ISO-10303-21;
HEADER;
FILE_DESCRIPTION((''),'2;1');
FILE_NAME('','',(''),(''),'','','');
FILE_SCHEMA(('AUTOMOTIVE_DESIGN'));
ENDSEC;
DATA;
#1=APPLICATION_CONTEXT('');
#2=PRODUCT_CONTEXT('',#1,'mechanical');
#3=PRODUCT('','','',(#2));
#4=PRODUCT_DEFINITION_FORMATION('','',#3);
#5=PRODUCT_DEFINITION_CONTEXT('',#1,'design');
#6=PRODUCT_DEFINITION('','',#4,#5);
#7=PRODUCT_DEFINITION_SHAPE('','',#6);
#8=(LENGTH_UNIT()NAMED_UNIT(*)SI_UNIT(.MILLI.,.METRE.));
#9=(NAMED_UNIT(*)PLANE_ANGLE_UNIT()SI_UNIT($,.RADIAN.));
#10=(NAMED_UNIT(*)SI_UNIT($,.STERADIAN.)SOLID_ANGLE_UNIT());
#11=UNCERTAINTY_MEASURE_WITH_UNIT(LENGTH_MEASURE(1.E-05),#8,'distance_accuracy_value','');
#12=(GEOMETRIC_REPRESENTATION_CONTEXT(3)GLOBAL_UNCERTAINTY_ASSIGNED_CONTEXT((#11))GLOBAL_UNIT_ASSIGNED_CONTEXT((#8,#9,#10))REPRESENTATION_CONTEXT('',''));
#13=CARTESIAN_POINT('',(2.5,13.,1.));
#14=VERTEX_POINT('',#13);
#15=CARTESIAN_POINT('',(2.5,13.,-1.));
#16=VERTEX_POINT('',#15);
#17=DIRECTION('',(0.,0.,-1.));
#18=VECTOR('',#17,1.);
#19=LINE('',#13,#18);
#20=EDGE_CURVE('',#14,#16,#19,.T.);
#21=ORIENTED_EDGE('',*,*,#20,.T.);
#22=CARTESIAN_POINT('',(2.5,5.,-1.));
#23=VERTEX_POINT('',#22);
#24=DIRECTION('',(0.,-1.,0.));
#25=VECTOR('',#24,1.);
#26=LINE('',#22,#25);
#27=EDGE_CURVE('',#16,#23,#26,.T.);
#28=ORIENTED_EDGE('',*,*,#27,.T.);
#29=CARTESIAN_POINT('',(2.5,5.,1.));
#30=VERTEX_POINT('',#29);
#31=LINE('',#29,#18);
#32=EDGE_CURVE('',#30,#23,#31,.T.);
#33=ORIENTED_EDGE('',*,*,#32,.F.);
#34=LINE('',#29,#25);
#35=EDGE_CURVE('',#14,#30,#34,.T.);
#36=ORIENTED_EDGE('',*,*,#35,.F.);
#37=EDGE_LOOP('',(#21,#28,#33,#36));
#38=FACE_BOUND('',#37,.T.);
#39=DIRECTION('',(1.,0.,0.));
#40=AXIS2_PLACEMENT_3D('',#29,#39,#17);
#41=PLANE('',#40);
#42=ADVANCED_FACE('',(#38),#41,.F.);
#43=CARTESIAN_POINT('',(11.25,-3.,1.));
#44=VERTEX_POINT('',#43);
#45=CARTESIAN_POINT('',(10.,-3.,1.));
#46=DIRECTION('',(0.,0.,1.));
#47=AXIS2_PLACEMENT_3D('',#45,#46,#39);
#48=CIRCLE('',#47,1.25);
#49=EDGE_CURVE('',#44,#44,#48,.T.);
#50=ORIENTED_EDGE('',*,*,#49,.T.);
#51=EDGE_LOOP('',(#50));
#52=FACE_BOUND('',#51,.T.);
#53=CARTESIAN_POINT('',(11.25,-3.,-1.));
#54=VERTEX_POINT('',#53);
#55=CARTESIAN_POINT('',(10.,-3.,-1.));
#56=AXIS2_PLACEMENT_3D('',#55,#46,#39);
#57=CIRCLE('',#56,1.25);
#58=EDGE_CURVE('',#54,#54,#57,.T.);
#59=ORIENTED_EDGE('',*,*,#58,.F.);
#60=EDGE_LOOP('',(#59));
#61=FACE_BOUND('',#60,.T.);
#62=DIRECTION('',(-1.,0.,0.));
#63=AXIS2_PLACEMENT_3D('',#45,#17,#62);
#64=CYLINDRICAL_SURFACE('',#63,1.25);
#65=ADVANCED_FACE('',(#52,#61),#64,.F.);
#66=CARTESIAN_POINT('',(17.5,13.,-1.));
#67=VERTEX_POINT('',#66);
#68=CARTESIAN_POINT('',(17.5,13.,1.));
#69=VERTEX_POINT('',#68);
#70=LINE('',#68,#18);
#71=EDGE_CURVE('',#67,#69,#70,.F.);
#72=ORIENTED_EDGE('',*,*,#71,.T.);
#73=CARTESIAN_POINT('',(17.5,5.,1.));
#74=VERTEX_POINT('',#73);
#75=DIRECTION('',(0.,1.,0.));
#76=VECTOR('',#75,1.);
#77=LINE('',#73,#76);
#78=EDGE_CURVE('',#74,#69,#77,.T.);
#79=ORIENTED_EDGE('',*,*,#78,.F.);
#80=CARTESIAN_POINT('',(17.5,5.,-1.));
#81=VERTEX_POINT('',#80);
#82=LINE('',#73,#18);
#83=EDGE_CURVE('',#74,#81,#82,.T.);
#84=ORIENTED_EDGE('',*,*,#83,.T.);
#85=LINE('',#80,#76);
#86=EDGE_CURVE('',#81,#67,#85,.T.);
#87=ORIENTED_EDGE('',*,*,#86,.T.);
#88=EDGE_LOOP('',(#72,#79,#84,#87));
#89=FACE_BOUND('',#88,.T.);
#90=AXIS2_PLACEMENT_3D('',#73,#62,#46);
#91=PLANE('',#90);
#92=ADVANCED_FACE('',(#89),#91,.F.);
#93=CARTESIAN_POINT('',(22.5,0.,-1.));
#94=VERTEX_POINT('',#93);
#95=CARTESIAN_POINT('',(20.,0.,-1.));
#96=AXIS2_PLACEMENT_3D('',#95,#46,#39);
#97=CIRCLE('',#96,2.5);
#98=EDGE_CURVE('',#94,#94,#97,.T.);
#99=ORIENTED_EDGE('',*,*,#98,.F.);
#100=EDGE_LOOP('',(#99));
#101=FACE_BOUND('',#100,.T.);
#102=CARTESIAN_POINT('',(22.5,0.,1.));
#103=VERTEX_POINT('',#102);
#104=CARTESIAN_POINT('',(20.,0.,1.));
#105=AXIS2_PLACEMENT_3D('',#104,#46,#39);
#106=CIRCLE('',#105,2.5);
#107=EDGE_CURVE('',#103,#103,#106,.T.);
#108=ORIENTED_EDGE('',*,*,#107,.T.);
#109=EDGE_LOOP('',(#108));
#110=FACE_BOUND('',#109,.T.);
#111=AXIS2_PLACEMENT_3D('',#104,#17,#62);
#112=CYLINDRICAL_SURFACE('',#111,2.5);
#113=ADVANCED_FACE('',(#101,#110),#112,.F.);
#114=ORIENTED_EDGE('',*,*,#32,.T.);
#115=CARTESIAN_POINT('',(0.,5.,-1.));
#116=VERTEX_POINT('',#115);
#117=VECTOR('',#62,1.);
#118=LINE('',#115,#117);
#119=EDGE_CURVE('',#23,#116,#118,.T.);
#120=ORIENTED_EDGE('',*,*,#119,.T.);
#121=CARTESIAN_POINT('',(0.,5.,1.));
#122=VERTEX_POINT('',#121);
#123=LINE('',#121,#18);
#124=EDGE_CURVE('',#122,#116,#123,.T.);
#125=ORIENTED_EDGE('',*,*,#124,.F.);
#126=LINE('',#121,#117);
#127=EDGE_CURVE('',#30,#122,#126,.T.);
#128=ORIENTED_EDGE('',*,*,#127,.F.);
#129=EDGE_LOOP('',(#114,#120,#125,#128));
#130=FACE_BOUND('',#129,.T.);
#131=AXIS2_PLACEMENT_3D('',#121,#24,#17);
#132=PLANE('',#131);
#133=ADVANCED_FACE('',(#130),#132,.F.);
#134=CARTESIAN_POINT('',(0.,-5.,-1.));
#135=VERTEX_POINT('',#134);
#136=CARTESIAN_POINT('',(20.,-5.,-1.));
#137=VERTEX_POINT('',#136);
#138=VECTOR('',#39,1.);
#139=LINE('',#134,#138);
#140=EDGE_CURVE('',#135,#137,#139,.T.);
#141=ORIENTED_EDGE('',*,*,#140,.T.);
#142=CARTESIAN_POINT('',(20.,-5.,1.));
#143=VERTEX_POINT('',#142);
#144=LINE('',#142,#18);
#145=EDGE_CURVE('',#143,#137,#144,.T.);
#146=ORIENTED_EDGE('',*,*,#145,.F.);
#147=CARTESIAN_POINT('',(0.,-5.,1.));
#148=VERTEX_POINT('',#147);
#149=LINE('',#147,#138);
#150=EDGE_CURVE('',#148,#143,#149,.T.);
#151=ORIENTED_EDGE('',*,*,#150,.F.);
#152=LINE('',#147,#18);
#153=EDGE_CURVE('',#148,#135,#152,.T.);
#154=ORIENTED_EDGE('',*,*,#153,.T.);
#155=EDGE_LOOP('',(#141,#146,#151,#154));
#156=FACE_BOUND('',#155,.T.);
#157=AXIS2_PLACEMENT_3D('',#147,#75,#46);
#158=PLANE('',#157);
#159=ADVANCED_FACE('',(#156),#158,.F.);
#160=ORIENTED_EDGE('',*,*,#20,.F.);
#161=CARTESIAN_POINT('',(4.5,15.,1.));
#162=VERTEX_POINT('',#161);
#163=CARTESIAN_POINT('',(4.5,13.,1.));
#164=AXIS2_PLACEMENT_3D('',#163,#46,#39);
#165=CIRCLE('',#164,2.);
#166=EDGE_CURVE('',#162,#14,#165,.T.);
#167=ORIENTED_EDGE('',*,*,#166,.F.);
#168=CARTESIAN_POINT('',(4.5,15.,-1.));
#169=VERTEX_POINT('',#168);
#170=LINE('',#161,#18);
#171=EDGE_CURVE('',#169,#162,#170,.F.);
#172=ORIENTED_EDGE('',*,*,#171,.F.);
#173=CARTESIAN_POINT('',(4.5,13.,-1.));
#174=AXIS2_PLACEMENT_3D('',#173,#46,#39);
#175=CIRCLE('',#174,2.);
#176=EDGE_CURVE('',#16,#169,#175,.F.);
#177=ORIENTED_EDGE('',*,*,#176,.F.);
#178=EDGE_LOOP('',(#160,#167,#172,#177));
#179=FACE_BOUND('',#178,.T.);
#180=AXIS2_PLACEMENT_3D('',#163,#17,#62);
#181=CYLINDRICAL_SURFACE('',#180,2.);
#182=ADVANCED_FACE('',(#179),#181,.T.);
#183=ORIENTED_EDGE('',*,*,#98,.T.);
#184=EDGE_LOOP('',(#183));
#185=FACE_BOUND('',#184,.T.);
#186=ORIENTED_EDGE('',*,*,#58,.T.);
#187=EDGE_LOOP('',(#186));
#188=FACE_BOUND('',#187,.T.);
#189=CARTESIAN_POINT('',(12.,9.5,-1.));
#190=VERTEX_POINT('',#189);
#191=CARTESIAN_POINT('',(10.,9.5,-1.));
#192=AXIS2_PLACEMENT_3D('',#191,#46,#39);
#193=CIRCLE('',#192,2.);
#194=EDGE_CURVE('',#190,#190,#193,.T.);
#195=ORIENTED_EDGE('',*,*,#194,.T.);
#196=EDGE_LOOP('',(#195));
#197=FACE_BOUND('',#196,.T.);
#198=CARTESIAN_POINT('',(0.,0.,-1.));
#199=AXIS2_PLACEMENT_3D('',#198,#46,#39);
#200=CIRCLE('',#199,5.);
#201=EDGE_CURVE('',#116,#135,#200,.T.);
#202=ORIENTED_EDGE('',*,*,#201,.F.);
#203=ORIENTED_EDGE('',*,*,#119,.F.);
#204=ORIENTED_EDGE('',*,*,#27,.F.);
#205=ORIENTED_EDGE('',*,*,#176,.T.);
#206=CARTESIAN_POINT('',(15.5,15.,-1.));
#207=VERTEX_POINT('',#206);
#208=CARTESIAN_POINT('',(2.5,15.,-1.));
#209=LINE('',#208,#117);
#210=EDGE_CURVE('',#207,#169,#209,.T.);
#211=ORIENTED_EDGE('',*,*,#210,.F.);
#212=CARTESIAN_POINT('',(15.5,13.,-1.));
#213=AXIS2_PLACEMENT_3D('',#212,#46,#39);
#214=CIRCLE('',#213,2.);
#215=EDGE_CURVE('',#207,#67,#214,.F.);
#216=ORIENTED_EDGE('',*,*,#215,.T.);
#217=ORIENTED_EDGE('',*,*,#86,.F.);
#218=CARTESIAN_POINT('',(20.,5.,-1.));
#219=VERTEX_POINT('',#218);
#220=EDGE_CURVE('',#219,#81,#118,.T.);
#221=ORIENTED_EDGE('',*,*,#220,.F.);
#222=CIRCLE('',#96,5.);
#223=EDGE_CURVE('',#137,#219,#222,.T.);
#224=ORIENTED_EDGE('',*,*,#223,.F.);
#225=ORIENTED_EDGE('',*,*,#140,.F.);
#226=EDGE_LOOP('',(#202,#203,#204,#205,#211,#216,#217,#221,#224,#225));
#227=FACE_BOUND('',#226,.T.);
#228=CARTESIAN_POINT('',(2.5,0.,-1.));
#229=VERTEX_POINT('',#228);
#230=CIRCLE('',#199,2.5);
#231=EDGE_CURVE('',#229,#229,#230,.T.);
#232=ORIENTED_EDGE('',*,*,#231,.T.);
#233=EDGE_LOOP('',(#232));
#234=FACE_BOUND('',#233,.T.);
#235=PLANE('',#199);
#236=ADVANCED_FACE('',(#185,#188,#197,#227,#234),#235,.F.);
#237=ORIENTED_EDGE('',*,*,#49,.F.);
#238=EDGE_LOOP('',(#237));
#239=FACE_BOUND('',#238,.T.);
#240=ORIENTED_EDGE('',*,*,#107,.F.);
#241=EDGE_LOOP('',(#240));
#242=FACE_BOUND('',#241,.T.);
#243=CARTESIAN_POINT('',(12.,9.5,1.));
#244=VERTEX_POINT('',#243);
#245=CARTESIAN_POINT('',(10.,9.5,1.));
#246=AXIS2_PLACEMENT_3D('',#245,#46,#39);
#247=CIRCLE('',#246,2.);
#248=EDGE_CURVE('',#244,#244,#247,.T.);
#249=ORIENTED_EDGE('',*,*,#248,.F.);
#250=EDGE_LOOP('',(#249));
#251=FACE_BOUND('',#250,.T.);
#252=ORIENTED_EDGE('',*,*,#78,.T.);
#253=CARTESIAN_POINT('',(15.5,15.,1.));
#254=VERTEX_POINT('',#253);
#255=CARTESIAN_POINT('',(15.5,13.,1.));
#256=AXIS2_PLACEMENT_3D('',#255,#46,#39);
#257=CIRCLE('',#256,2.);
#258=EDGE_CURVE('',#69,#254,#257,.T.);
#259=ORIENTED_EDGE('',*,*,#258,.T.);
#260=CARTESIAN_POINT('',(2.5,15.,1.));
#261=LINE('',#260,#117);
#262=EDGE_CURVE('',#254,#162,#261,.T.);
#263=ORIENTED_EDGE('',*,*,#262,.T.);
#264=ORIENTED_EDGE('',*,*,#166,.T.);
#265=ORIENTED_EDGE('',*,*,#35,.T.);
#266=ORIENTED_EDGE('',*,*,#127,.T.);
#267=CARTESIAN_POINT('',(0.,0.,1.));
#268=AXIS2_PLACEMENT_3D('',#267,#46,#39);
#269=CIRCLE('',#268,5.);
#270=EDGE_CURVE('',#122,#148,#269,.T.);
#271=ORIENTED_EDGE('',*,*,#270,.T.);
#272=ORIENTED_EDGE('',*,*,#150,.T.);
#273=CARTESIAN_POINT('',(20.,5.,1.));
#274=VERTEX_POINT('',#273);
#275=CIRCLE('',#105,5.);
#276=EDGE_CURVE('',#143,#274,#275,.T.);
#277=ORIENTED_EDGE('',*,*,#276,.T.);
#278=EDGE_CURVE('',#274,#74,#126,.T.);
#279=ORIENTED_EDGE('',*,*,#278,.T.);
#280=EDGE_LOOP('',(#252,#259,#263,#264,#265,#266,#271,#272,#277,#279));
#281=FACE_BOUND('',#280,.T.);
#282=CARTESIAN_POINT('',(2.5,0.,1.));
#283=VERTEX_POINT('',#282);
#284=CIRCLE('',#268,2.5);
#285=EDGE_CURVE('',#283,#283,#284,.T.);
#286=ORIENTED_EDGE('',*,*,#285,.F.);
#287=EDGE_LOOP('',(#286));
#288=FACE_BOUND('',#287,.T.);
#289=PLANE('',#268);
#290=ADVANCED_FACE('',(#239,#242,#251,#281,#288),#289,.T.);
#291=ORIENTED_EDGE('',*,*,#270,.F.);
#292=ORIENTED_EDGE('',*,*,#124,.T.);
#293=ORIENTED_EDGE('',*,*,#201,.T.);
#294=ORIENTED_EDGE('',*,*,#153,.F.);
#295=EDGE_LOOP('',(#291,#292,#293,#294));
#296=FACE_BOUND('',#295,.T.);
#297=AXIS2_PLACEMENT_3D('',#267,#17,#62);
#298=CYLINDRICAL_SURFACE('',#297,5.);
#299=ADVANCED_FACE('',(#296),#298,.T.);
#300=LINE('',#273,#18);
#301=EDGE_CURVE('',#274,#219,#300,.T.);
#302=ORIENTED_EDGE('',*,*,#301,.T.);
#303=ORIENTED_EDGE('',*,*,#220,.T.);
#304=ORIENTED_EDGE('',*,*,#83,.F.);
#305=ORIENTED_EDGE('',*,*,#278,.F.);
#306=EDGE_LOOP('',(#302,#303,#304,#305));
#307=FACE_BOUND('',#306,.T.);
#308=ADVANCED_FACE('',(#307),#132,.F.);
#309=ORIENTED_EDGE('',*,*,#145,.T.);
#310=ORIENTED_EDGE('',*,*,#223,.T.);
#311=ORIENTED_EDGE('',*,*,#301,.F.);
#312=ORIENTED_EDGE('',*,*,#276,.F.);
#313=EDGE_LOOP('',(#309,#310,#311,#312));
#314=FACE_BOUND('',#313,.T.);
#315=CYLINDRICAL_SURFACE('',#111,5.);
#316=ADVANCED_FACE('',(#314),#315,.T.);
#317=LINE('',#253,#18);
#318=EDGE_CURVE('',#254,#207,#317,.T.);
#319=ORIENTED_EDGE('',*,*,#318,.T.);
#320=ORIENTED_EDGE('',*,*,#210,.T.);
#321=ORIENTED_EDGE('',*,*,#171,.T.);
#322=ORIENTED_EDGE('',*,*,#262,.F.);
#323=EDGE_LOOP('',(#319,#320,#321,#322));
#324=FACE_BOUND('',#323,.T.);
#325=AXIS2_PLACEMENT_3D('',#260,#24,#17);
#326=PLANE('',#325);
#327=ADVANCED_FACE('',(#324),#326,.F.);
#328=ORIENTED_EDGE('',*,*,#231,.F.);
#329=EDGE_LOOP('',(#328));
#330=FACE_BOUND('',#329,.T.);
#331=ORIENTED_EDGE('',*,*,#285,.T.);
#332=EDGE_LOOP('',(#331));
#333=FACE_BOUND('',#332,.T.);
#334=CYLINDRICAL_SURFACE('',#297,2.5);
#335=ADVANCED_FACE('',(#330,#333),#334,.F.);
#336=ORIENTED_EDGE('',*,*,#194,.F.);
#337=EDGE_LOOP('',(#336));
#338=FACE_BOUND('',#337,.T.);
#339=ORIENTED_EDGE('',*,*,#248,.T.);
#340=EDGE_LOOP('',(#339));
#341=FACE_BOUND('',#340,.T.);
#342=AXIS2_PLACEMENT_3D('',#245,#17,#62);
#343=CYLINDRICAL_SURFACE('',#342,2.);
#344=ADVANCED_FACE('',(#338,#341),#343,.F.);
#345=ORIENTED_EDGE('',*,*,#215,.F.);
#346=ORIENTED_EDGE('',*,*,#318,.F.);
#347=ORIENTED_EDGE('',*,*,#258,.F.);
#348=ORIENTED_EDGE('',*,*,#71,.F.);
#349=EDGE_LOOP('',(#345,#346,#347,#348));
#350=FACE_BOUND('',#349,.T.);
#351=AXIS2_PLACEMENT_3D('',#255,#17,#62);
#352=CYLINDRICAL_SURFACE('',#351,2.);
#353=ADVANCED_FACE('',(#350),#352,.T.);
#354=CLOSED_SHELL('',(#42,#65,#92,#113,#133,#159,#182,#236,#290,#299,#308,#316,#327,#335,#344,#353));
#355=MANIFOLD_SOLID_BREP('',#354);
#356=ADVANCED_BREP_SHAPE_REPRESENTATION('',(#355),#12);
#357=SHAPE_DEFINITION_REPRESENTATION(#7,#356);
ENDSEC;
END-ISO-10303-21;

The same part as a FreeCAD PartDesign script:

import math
import FreeCAD as App
import Part
import Sketcher
Q = App.Units.Quantity


def edges_at(feature, points):
    """Names of the edges that pass closest to the given points."""
    edges = feature.Shape.Edges
    near = lambda p: min(range(len(edges)), key=lambda i: edges[i].distToShape(Part.Vertex(*p))[0])
    return sorted({f"Edge{near(p) + 1}" for p in points})

doc = App.newDocument("Part")
body = doc.addObject("PartDesign::Body", "Body")

# Sketch on XY plane
sketch1 = doc.addObject("Sketcher::SketchObject", "Sketch")
body.addObject(sketch1)
sketch1.AttachmentSupport = (doc.XY_Plane, [""])
sketch1.MapMode = "FlatFace"
sketch1.addGeometry([
    Part.LineSegment(App.Vector(20, 5, 0), App.Vector(0, 5, 0)),  # 0
    Part.ArcOfCircle(Part.Circle(App.Vector(0, 0, 0), App.Vector(0, 0, 1), 5), math.radians(90), math.radians(270)),  # 1
    Part.LineSegment(App.Vector(0, -5, 0), App.Vector(20, -5, 0)),  # 2
    Part.ArcOfCircle(Part.Circle(App.Vector(20, 0, 0), App.Vector(0, 0, 1), 5), math.radians(-90), math.radians(90)),  # 3
    Part.Circle(App.Vector(10, -3, 0), App.Vector(0, 0, 1), 1.2),  # 4
    Part.Circle(App.Vector(20, 0, 0), App.Vector(0, 0, 1), 2.5),  # 5
    Part.Circle(App.Vector(0, 0, 0), App.Vector(0, 0, 1), 2.5),  # 6
], False)
sketch1.addConstraint([
    Sketcher.Constraint("Tangent", 0, 2, 1, 1),
    Sketcher.Constraint("Tangent", 1, 2, 2, 1),
    Sketcher.Constraint("Tangent", 2, 2, 3, 1),
    Sketcher.Constraint("Tangent", 3, 2, 0, 1),
    Sketcher.Constraint("Horizontal", 0),
    Sketcher.Constraint("Horizontal", 2),
    Sketcher.Constraint("Coincident", 1, 3, -1, 1),
    Sketcher.Constraint("Coincident", 6, 3, -1, 1),
    Sketcher.Constraint("Coincident", 5, 3, 3, 3),
    Sketcher.Constraint("Equal", 5, 6),
    Sketcher.Constraint("Diameter", 5, Q("5 mm")),
    Sketcher.Constraint("Radius", 1, Q("5 mm")),
    Sketcher.Constraint("Diameter", 4, Q("2.5 mm")),
    Sketcher.Constraint("DistanceX", 0, 2, 0, 1, Q("20 mm")),
    Sketcher.Constraint("DistanceX", -1, 1, 4, 3, Q("10 mm")),
    Sketcher.Constraint("DistanceY", 4, 3, -1, 1, Q("3 mm")),
])
pad1 = doc.addObject("PartDesign::Pad", "Pad")
body.addObject(pad1)
pad1.Profile = sketch1
pad1.Length = 2
pad1.Midplane = True

# Sketch on XY plane
sketch2 = doc.addObject("Sketcher::SketchObject", "Sketch001")
body.addObject(sketch2)
sketch2.AttachmentSupport = (doc.XY_Plane, [""])
sketch2.MapMode = "FlatFace"
sketch2.addGeometry([
    Part.LineSegment(App.Vector(2.5, 15, 0), App.Vector(2.5, 5, 0)),  # 0
    Part.LineSegment(App.Vector(2.5, 5, 0), App.Vector(17.5, 5, 0)),  # 1
    Part.LineSegment(App.Vector(17.5, 5, 0), App.Vector(17.5, 15, 0)),  # 2
    Part.LineSegment(App.Vector(17.5, 15, 0), App.Vector(2.5, 15, 0)),  # 3
    Part.Circle(App.Vector(10, 9.5, 0), App.Vector(0, 0, 1), 2),  # 4
], False)
sketch2.addConstraint([
    Sketcher.Constraint("Coincident", 0, 2, 1, 1),
    Sketcher.Constraint("Coincident", 1, 2, 2, 1),
    Sketcher.Constraint("Coincident", 2, 2, 3, 1),
    Sketcher.Constraint("Coincident", 3, 2, 0, 1),
    Sketcher.Constraint("Vertical", 0),
    Sketcher.Constraint("Horizontal", 1),
    Sketcher.Constraint("Vertical", 2),
    Sketcher.Constraint("Horizontal", 3),
    Sketcher.Constraint("Diameter", 4, Q("4 mm")),
    Sketcher.Constraint("DistanceX", 1, 1, 1, 2, Q("15 mm")),
    Sketcher.Constraint("DistanceY", 0, 2, 0, 1, Q("10 mm")),
    Sketcher.Constraint("DistanceX", -1, 1, 4, 3, Q("10 mm")),
    Sketcher.Constraint("DistanceY", -1, 1, 0, 2, Q("5 mm")),
    Sketcher.Constraint("DistanceY", -1, 1, 4, 3, Q("9.5 mm")),
    Sketcher.Constraint("DistanceX", -1, 1, 0, 2, Q("2.5 mm")),
])
pad2 = doc.addObject("PartDesign::Pad", "Pad001")
body.addObject(pad2)
pad2.Profile = sketch2
pad2.Length = 2
pad2.Midplane = True
doc.recompute()

fillet = doc.addObject("PartDesign::Fillet", "Fillet")
body.addObject(fillet)
fillet.Base = (pad2, edges_at(pad2, [(2.5, 15, 0), (17.5, 15, 0)]))
fillet.Radius = 2

doc.recompute()
